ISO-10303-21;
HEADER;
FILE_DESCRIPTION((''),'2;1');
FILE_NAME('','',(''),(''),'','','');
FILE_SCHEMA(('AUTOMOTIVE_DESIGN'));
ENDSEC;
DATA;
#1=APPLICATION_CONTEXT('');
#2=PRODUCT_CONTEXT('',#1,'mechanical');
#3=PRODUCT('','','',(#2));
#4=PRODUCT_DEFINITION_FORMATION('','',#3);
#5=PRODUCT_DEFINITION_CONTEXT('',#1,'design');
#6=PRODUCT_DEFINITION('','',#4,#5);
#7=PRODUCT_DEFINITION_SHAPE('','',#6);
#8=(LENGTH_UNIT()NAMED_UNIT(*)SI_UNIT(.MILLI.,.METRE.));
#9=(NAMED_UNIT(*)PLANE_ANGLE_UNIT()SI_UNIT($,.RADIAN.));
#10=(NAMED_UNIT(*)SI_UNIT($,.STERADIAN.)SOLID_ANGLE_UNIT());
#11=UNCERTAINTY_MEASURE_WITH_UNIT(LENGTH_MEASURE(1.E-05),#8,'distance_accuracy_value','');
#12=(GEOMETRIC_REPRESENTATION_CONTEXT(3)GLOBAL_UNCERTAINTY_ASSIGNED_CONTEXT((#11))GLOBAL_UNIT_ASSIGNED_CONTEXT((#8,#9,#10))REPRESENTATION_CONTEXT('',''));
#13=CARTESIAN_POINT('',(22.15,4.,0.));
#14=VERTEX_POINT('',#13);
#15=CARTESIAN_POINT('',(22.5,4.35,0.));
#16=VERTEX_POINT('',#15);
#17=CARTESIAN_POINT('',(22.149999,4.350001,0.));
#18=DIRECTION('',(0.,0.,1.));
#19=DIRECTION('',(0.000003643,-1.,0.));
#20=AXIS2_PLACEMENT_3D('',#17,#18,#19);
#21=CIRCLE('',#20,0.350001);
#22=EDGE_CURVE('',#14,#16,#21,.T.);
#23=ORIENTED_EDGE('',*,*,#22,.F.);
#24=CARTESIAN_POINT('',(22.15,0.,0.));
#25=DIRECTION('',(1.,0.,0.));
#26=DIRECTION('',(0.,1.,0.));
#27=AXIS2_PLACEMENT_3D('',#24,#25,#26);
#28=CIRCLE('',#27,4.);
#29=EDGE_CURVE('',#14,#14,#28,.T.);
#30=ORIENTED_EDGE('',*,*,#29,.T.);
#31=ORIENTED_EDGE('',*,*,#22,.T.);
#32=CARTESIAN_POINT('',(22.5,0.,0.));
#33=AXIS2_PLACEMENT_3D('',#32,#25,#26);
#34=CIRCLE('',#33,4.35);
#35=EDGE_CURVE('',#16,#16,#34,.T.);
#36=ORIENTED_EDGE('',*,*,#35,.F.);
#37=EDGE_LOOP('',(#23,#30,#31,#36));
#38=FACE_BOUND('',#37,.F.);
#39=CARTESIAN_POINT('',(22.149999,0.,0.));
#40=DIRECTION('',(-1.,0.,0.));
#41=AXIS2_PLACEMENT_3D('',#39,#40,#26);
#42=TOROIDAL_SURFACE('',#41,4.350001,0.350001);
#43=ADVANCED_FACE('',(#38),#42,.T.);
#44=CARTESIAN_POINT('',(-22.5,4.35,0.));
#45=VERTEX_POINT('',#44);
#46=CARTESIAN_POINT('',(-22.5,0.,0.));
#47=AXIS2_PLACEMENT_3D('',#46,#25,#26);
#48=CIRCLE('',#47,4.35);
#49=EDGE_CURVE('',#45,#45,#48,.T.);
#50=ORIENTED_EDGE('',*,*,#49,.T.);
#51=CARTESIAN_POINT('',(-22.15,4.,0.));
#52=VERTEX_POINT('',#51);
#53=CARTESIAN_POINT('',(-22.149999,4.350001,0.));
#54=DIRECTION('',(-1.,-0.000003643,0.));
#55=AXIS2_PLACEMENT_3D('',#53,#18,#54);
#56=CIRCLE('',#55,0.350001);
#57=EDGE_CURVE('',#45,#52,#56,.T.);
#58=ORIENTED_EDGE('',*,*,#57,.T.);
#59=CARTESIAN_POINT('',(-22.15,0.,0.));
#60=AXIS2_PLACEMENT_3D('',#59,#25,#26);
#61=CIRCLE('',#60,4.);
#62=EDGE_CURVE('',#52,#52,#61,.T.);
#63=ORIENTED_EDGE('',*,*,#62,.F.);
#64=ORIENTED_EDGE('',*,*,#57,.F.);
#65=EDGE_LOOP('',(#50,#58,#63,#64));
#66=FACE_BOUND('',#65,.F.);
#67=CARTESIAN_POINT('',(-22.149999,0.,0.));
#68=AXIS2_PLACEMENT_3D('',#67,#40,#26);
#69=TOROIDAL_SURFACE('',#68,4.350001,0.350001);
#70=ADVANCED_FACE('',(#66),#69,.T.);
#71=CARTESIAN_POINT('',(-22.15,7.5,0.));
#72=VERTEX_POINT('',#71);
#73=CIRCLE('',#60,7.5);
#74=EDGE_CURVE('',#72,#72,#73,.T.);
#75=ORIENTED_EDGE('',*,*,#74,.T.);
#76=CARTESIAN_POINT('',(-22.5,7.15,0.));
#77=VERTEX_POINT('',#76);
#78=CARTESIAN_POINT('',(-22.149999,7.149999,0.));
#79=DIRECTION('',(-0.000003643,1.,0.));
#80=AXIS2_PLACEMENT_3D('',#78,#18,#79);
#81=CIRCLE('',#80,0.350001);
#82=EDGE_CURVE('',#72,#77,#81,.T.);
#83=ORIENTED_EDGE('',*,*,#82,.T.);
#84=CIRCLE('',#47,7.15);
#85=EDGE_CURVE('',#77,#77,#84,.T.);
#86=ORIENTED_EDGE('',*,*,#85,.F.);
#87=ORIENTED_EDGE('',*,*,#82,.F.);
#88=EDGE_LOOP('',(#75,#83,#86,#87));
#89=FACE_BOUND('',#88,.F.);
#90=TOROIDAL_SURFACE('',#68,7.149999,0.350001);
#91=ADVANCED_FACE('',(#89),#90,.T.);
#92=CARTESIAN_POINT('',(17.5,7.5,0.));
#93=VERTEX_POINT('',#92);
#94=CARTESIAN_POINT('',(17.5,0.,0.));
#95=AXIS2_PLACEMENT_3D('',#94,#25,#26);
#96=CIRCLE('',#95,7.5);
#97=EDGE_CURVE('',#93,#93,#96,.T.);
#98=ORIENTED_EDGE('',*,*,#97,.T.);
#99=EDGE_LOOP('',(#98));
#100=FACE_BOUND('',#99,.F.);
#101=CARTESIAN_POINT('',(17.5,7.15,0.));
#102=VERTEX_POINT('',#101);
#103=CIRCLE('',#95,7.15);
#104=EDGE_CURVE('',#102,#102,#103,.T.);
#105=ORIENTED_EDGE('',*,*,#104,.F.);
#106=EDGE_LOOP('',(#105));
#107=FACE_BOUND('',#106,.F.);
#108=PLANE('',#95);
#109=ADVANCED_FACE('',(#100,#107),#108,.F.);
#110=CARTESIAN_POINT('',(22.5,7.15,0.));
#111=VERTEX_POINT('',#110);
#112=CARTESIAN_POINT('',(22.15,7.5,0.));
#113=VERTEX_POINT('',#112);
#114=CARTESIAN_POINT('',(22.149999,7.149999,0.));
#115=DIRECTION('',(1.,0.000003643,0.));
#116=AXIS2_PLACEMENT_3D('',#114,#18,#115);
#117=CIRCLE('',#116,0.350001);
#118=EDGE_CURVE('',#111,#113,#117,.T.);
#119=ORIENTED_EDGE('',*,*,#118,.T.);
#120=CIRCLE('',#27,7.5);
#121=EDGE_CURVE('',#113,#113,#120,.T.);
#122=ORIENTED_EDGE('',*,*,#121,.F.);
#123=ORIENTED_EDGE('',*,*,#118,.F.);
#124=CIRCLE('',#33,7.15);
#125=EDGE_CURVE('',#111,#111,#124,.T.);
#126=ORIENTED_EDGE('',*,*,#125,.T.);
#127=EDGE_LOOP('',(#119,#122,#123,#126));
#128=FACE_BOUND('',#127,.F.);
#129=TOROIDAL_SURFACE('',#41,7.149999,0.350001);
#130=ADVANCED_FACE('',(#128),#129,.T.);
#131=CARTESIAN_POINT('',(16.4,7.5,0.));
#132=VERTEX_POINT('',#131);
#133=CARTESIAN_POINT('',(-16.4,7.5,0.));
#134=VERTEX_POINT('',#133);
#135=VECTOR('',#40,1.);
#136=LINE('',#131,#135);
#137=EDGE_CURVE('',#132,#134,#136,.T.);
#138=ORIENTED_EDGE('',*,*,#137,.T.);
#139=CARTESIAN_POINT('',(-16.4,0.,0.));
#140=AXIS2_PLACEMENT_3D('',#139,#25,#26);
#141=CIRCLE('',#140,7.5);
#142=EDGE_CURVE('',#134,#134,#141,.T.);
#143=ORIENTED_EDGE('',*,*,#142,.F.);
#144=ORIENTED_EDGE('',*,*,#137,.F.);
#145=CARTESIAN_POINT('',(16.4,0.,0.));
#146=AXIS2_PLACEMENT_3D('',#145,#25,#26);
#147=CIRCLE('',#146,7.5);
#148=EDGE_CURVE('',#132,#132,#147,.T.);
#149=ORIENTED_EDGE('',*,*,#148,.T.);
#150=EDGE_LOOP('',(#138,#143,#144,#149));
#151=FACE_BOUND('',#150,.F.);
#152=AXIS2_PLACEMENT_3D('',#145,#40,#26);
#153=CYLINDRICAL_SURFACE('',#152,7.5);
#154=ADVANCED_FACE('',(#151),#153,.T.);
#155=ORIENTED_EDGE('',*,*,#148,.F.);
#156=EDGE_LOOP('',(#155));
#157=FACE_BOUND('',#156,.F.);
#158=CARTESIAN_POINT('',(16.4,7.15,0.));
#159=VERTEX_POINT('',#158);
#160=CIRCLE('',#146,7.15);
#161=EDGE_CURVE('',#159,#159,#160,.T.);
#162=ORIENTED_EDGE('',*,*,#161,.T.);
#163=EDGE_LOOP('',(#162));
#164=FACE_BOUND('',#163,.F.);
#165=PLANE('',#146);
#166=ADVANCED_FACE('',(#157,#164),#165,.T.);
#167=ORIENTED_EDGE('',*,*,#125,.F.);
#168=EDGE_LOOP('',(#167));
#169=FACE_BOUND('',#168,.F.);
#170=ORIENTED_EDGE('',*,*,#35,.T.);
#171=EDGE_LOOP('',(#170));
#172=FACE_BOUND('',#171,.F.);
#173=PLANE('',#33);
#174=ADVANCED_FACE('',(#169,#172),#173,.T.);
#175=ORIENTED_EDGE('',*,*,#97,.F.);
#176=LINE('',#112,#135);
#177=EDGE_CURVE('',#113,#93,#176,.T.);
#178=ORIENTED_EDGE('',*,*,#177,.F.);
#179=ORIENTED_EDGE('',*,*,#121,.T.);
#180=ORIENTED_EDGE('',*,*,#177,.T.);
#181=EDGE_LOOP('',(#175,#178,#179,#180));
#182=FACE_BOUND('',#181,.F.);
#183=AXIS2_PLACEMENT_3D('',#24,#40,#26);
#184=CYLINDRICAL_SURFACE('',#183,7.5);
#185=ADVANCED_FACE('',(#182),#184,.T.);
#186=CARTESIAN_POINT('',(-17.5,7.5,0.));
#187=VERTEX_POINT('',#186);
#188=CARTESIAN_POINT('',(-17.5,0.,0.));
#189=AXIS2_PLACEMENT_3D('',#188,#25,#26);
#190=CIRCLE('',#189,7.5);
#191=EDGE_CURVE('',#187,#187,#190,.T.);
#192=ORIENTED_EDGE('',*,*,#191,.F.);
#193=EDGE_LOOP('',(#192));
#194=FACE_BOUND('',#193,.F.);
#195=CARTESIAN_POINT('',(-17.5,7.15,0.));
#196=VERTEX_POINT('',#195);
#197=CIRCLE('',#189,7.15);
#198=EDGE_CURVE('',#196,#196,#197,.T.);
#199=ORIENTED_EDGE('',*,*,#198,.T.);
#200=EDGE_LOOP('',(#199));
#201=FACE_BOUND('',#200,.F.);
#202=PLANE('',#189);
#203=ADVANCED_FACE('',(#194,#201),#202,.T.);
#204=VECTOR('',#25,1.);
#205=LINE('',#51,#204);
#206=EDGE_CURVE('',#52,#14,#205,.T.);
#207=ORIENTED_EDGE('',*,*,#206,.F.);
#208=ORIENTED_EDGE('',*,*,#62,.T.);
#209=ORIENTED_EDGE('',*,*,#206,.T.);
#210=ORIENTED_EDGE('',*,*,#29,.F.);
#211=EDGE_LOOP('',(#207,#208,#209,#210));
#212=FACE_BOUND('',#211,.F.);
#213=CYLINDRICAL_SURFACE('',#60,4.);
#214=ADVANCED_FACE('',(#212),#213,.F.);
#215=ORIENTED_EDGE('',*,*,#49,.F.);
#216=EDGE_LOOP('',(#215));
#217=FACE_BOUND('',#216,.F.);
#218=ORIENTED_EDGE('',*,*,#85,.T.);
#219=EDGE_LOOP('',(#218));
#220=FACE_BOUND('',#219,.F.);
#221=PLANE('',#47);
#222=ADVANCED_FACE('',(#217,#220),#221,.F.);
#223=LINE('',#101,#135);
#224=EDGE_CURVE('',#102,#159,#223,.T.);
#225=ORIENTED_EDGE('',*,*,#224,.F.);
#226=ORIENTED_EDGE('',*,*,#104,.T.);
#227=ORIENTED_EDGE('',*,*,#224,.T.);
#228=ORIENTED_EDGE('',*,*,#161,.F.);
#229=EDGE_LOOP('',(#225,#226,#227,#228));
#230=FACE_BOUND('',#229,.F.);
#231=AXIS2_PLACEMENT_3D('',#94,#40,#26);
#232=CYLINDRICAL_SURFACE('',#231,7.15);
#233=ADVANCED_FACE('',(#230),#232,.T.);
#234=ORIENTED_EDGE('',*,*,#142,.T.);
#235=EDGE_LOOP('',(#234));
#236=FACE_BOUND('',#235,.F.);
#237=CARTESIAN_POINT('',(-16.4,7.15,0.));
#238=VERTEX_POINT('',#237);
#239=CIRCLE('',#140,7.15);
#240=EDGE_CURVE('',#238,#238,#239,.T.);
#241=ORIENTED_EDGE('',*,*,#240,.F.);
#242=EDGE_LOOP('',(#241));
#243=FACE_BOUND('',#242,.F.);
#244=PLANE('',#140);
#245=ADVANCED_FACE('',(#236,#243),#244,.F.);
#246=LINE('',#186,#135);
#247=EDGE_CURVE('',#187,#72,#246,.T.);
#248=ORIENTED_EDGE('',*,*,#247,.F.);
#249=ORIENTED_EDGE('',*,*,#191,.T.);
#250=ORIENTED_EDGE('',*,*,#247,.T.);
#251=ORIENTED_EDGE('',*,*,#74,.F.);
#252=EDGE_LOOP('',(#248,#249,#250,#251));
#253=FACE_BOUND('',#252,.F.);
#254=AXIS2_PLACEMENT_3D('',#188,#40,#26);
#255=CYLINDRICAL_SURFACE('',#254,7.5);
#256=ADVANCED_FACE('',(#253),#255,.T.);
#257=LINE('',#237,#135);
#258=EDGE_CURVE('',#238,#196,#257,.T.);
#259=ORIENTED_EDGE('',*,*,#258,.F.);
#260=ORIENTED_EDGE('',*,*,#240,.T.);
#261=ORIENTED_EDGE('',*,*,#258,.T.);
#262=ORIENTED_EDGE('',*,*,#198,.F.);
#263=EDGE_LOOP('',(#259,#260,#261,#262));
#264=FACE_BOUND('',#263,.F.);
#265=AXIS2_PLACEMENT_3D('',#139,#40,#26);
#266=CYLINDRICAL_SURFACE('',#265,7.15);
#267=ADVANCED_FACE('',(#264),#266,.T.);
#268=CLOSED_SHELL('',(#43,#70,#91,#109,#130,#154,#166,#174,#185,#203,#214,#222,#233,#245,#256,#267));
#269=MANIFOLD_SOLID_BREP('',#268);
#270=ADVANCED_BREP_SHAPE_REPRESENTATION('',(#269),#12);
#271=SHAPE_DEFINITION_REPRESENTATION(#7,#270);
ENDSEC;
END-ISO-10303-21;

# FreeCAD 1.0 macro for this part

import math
import FreeCAD as App
import Part
import Sketcher
Q = App.Units.Quantity

doc = App.newDocument("Part")
params = doc.addObject("Spreadsheet::Sheet", "Params")
for row, (alias, value) in enumerate([
    ("sketch1_radius", "0.350001 mm"),
    ("sketch1_width", "44.3 mm"),
    ("sketch1_width2", "1.1 mm"),
    ("sketch1_width3", "32.8 mm"),
    ("sketch1_height", "2.8 mm"),
    ("revolution_angle", "360 deg"),
], start=1):
    params.set(f"A{row}", alias)
    params.set(f"B{row}", "=" + value)
    params.setAlias(f"B{row}", alias)

body = doc.addObject("PartDesign::Body", "Body")

# Sketch on XY plane
sketch1 = body.newObject("Sketcher::SketchObject", "Sketch")
sketch1.AttachmentSupport = (doc.getObject("XY_Plane"), [""])
sketch1.MapMode = "FlatFace"
sketch1.addGeometry([
    Part.LineSegment(App.Vector(-17.5, 7.5, 0), App.Vector(-22.15, 7.5, 0)),  # 0
    Part.ArcOfCircle(Part.Circle(App.Vector(-22.149999, 7.149999, 0), App.Vector(0, 0, 1), 0.350001), math.radians(90.000209), math.radians(179.999791)),  # 1
    Part.LineSegment(App.Vector(-22.5, 7.15, 0), App.Vector(-22.5, 4.35, 0)),  # 2
    Part.ArcOfCircle(Part.Circle(App.Vector(-22.149999, 4.350001, 0), App.Vector(0, 0, 1), 0.350001), math.radians(-179.999791), math.radians(-90.000209)),  # 3
    Part.LineSegment(App.Vector(-22.15, 4, 0), App.Vector(22.15, 4, 0)),  # 4
    Part.ArcOfCircle(Part.Circle(App.Vector(22.149999, 4.350001, 0), App.Vector(0, 0, 1), 0.350001), math.radians(-89.999791), math.radians(-0.000209)),  # 5
    Part.LineSegment(App.Vector(22.5, 4.35, 0), App.Vector(22.5, 7.15, 0)),  # 6
    Part.ArcOfCircle(Part.Circle(App.Vector(22.149999, 7.149999, 0), App.Vector(0, 0, 1), 0.350001), math.radians(0.000209), math.radians(89.999791)),  # 7
    Part.LineSegment(App.Vector(22.15, 7.5, 0), App.Vector(17.5, 7.5, 0)),  # 8
    Part.LineSegment(App.Vector(17.5, 7.5, 0), App.Vector(17.5, 7.15, 0)),  # 9
    Part.LineSegment(App.Vector(17.5, 7.15, 0), App.Vector(16.4, 7.15, 0)),  # 10
    Part.LineSegment(App.Vector(16.4, 7.15, 0), App.Vector(16.4, 7.5, 0)),  # 11
    Part.LineSegment(App.Vector(16.4, 7.5, 0), App.Vector(-16.4, 7.5, 0)),  # 12
    Part.LineSegment(App.Vector(-16.4, 7.5, 0), App.Vector(-16.4, 7.15, 0)),  # 13
    Part.LineSegment(App.Vector(-16.4, 7.15, 0), App.Vector(-17.5, 7.15, 0)),  # 14
    Part.LineSegment(App.Vector(-17.5, 7.15, 0), App.Vector(-17.5, 7.5, 0)),  # 15
], False)
sketch1.addConstraint([
    Sketcher.Constraint("Coincident", 0, 2, 1, 1),
    Sketcher.Constraint("Coincident", 1, 2, 2, 1),
    Sketcher.Constraint("Coincident", 2, 2, 3, 1),
    Sketcher.Constraint("Coincident", 3, 2, 4, 1),
    Sketcher.Constraint("Coincident", 4, 2, 5, 1),
    Sketcher.Constraint("Coincident", 5, 2, 6, 1),
    Sketcher.Constraint("Coincident", 6, 2, 7, 1),
    Sketcher.Constraint("Coincident", 7, 2, 8, 1),
    Sketcher.Constraint("Coincident", 8, 2, 9, 1),
    Sketcher.Constraint("Coincident", 9, 2, 10, 1),
    Sketcher.Constraint("Coincident", 10, 2, 11, 1),
    Sketcher.Constraint("Coincident", 11, 2, 12, 1),
    Sketcher.Constraint("Coincident", 12, 2, 13, 1),
    Sketcher.Constraint("Coincident", 13, 2, 14, 1),
    Sketcher.Constraint("Coincident", 14, 2, 15, 1),
    Sketcher.Constraint("Coincident", 15, 2, 0, 1),
    Sketcher.Constraint("Horizontal", 0),
    Sketcher.Constraint("Vertical", 2),
    Sketcher.Constraint("Horizontal", 4),
    Sketcher.Constraint("Vertical", 6),
    Sketcher.Constraint("Horizontal", 8),
    Sketcher.Constraint("Vertical", 9),
    Sketcher.Constraint("Horizontal", 10),
    Sketcher.Constraint("Vertical", 11),
    Sketcher.Constraint("Horizontal", 12),
    Sketcher.Constraint("Vertical", 13),
    Sketcher.Constraint("Horizontal", 14),
    Sketcher.Constraint("Vertical", 15),
    Sketcher.Constraint("Equal", 1, 3),
    Sketcher.Constraint("Equal", 3, 5),
    Sketcher.Constraint("Equal", 5, 7),
    Sketcher.Constraint("Symmetric", 1, 3, 7, 3, -2),
    Sketcher.Constraint("Symmetric", 10, 2, 13, 2, -2),
    Sketcher.Constraint("Horizontal", 7, 3, 1, 2),
    Sketcher.Constraint("Horizontal", 5, 3, 2, 2),
    Sketcher.Constraint("Horizontal", 2, 2, 5, 2),
    Sketcher.Constraint("Horizontal", 1, 2, 6, 2),
    Sketcher.Constraint("Horizontal", 6, 2, 9, 2),
    Sketcher.Constraint("Horizontal", 8, 2, 11, 2),
    Sketcher.Constraint("Vertical", 3, 3, 0, 2),
    Sketcher.Constraint("Vertical", 0, 2, 3, 2),
    Sketcher.Constraint("Vertical", 7, 3, 4, 2),
    Sketcher.Constraint("Vertical", 4, 2, 7, 2),
    Sketcher.Constraint("Equal", 0, 8),
    Sketcher.Constraint("Radius", 1, Q("0.350001 mm")),
    Sketcher.Constraint("DistanceX", 4, 1, 4, 2, Q("44.3 mm")),
    Sketcher.Constraint("DistanceX", 10, 2, 10, 1, Q("1.1 mm")),
    Sketcher.Constraint("DistanceX", 12, 2, 12, 1, Q("32.8 mm")),
    Sketcher.Constraint("DistanceY", 2, 2, 2, 1, Q("2.8 mm")),
    Sketcher.Constraint("DistanceY", -1, 1, 3, 2, Q("4 mm")),
])
sketch1.setExpression("Constraints[44]", "Params.sketch1_radius")
sketch1.setExpression("Constraints[45]", "Params.sketch1_width")
sketch1.setExpression("Constraints[46]", "Params.sketch1_width2")
sketch1.setExpression("Constraints[47]", "Params.sketch1_width3")
sketch1.setExpression("Constraints[48]", "Params.sketch1_height")
revolution = body.newObject("PartDesign::Revolution", "Revolution")
revolution.Profile = sketch1
revolution.ReferenceAxis = (sketch1, ["H_Axis"])
revolution.setExpression("Angle", "Params.revolution_angle")

doc.recompute()
